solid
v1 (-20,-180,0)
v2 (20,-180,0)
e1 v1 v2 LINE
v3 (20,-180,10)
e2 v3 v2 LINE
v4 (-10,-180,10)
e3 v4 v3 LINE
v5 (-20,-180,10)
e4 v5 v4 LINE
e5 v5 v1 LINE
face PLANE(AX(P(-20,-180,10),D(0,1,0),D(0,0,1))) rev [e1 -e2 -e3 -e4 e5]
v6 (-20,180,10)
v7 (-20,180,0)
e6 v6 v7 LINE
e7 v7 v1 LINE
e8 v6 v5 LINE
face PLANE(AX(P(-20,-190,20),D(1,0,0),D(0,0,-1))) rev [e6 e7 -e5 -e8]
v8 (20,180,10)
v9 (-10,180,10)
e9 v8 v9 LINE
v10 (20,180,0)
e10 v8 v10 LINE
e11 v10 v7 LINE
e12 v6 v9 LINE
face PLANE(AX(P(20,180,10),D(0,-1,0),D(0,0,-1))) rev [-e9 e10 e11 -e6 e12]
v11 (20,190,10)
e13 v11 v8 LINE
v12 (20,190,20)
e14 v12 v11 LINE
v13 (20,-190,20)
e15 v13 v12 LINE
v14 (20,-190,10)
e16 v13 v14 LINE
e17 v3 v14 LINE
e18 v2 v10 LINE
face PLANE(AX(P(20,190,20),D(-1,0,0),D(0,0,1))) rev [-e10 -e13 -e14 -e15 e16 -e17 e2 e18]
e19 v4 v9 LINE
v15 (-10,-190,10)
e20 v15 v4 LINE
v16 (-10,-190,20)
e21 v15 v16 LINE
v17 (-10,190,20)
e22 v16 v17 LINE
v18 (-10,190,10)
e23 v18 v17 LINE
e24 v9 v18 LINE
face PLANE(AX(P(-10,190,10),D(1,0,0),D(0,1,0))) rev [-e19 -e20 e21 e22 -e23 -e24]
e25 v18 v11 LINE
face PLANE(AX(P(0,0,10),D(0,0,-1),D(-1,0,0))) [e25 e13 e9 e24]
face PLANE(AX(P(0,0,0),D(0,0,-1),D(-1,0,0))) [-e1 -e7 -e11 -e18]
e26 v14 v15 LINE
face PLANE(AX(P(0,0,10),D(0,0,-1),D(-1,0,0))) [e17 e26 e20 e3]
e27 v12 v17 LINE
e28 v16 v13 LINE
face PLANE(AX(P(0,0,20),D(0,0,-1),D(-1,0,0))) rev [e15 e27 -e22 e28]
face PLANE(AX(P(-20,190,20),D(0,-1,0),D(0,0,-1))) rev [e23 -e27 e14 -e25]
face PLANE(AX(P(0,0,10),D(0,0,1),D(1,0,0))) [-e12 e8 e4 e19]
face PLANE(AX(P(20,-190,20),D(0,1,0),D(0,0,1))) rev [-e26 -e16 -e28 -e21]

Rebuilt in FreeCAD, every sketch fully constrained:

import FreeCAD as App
import Part
import Sketcher

V = App.Vector
Q = App.Units.Quantity


def add_polygon(sketch, points):
    """Adds a closed chain of lines whose ends are joined by coincident constraints."""
    first, n = sketch.GeometryCount, len(points)
    for a, b in zip(points, points[1:] + points[:1]):
        sketch.addGeometry(Part.LineSegment(App.Vector(*a, 0), App.Vector(*b, 0)), False)
    for i in range(n):
        sketch.addConstraint(Sketcher.Constraint("Coincident", first + i, 2, first + (i + 1) % n, 1))

doc = App.newDocument("Part")
body = doc.addObject("PartDesign::Body", "Body")

# Sketch on XY plane
sketch1 = body.newObject("Sketcher::SketchObject", "Sketch")
sketch1.AttachmentSupport = (doc.getObject("XY_Plane"), [""])
sketch1.MapMode = "FlatFace"
add_polygon(sketch1, [(-20, 190), (-20, -190), (20, -190), (20, 190)])  # lines 0-3
sketch1.addConstraint([
    Sketcher.Constraint("Vertical", 0),
    Sketcher.Constraint("Horizontal", 1),
    Sketcher.Constraint("Vertical", 2),
    Sketcher.Constraint("Horizontal", 3),
    Sketcher.Constraint("Symmetric", 0, 2, 2, 2, -1, 1),
    Sketcher.Constraint("DistanceX", 1, 1, 1, 2, Q("40 mm")),
    Sketcher.Constraint("DistanceY", 0, 2, 0, 1, Q("380 mm")),
])
pad1 = body.newObject("PartDesign::Pad", "Pad")
pad1.Profile = sketch1
pad1.Length = 20

# Sketch on XY plane
sketch2 = body.newObject("Sketcher::SketchObject", "Sketch001")
sketch2.AttachmentSupport = (doc.getObject("XY_Plane"), [""])
sketch2.MapMode = "FlatFace"
sketch2.AttachmentOffset = App.Placement(V(0, 0, 20), App.Rotation())
add_polygon(sketch2, [(-20, 190), (-20, -190), (-10, -190), (-10, 190)])  # lines 0-3
sketch2.addConstraint([
    Sketcher.Constraint("Vertical", 0),
    Sketcher.Constraint("Horizontal", 1),
    Sketcher.Constraint("Vertical", 2),
    Sketcher.Constraint("Horizontal", 3),
    Sketcher.Constraint("DistanceX", 1, 1, 1, 2, Q("10 mm")),
    Sketcher.Constraint("DistanceY", 0, 2, 0, 1, Q("380 mm")),
    Sketcher.Constraint("DistanceX", 0, 2, -1, 1, Q("20 mm")),
    Sketcher.Constraint("DistanceY", 0, 2, -1, 1, Q("190 mm")),
])
pocket1 = body.newObject("PartDesign::Pocket", "Pocket")
pocket1.Profile = sketch2
pocket1.Length = 10

# Sketch on XY plane
sketch3 = body.newObject("Sketcher::SketchObject", "Sketch002")
sketch3.AttachmentSupport = (doc.getObject("XY_Plane"), [""])
sketch3.MapMode = "FlatFace"
add_polygon(sketch3, [(20, 190), (20, 180), (-20, 180), (-20, 190)])  # lines 0-3
add_polygon(sketch3, [(20, -180), (20, -190), (-20, -190), (-20, -180)])  # lines 4-7
sketch3.addConstraint([
    Sketcher.Constraint("Vertical", 0),
    Sketcher.Constraint("Horizontal", 1),
    Sketcher.Constraint("Vertical", 2),
    Sketcher.Constraint("Horizontal", 3),
    Sketcher.Constraint("Vertical", 4),
    Sketcher.Constraint("Horizontal", 5),
    Sketcher.Constraint("Vertical", 6),
    Sketcher.Constraint("Horizontal", 7),
    Sketcher.Constraint("Symmetric", 2, 2, 4, 2, -1, 1),
    Sketcher.Constraint("Symmetric", 0, 2, 6, 2, -1, 1),
    Sketcher.Constraint("Vertical", 3, 2, 4, 2),
    Sketcher.Constraint("DistanceX", 1, 2, 1, 1, Q("40 mm")),
    Sketcher.Constraint("DistanceY", 0, 2, 0, 1, Q("10 mm")),
    Sketcher.Constraint("DistanceY", -1, 1, 0, 2, Q("180 mm")),
])
pocket2 = body.newObject("PartDesign::Pocket", "Pocket001")
pocket2.Profile = sketch3
pocket2.Length = 10
pocket2.Reversed = True

doc.recompute()
